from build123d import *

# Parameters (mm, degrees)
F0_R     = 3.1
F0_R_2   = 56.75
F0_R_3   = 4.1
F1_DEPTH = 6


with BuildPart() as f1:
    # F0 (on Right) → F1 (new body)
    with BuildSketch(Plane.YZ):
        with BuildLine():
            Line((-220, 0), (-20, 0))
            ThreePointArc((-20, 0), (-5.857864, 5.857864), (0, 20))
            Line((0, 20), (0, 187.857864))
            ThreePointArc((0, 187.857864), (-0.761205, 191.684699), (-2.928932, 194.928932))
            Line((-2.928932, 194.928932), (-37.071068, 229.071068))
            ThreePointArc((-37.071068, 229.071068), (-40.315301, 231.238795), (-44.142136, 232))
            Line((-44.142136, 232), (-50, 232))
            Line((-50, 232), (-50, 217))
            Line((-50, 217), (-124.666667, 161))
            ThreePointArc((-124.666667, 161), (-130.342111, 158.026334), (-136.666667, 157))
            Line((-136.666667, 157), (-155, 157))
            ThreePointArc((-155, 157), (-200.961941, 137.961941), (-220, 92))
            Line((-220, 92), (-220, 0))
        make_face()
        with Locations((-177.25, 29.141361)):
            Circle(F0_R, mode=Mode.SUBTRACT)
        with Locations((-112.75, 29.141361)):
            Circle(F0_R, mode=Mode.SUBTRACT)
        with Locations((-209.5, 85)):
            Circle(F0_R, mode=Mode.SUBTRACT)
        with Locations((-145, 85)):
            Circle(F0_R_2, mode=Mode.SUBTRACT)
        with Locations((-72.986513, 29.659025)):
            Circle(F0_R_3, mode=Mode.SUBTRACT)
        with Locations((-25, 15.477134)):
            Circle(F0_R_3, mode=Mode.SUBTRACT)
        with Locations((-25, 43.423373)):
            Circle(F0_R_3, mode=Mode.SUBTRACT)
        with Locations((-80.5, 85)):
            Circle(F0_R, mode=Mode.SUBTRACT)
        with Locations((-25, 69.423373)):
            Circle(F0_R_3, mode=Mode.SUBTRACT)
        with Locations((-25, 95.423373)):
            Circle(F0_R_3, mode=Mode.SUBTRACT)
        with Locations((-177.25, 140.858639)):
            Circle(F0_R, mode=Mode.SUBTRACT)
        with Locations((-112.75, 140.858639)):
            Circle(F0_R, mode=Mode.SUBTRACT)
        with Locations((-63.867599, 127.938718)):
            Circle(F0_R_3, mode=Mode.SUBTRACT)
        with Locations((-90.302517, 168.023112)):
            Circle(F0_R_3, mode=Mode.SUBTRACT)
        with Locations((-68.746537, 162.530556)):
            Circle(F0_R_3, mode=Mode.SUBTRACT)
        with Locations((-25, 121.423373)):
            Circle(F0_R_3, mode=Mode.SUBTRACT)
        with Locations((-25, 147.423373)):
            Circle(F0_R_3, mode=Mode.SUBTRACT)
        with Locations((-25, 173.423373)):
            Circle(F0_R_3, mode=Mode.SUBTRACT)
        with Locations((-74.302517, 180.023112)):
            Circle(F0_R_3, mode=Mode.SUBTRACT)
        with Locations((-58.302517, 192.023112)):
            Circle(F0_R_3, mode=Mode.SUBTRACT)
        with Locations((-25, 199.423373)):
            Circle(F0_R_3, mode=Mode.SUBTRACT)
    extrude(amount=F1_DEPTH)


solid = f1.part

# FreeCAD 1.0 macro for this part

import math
import FreeCAD as App
import Part
import Sketcher
from FreeCAD import Vector

doc = App.newDocument("Part")
body = doc.addObject("PartDesign::Body", "Body")

sketch1 = doc.addObject("Sketcher::SketchObject", "Sketch")
body.addObject(sketch1)
sketch1.AttachmentSupport = (doc.YZ_Plane, [""])
sketch1.MapMode = "FlatFace"
sketch1.addGeometry([
    Part.LineSegment(Vector(-220, 0, 0), Vector(-20, 0, 0)),
    Part.ArcOfCircle(Part.Circle(Vector(-19.999999, 19.999999, 0), Vector(0, 0, 1), 19.999999), math.radians(-90.000004), math.radians(0.000004)),
    Part.LineSegment(Vector(0, 20, 0), Vector(0, 187.857864, 0)),
    Part.ArcOfCircle(Part.Circle(Vector(-10.000002, 187.857863, 0), Vector(0, 0, 1), 10.000002), math.radians(0.000003), math.radians(44.999993)),
    Part.LineSegment(Vector(-2.928932, 194.928932, 0), Vector(-37.071068, 229.071068, 0)),
    Part.ArcOfCircle(Part.Circle(Vector(-44.142137, 221.999998, 0), Vector(0, 0, 1), 10.000002), math.radians(45.000007), math.radians(89.999997)),
    Part.LineSegment(Vector(-44.142136, 232, 0), Vector(-50, 232, 0)),
    Part.LineSegment(Vector(-50, 232, 0), Vector(-50, 217, 0)),
    Part.LineSegment(Vector(-50, 217, 0), Vector(-124.666667, 161, 0)),
    Part.ArcOfCircle(Part.Circle(Vector(-136.666665, 176.999995, 0), Vector(0, 0, 1), 19.999995), math.radians(-90.000004), math.radians(-53.130098)),
    Part.LineSegment(Vector(-136.666667, 157, 0), Vector(-155, 157, 0)),
    Part.ArcOfCircle(Part.Circle(Vector(-155.000001, 92.000001, 0), Vector(0, 0, 1), 64.999999), math.radians(89.999999), math.radians(180.000001)),
    Part.LineSegment(Vector(-220, 92, 0), Vector(-220, 0, 0)),
    Part.Circle(Vector(-177.25, 29.141361, 0), Vector(0, 0, 1), 3.1),
    Part.Circle(Vector(-209.5, 85, 0), Vector(0, 0, 1), 3.1),
    Part.Circle(Vector(-145, 85, 0), Vector(0, 0, 1), 56.75),
    Part.Circle(Vector(-112.75, 29.141361, 0), Vector(0, 0, 1), 3.1),
    Part.Circle(Vector(-72.986513, 29.659025, 0), Vector(0, 0, 1), 4.1),
    Part.Circle(Vector(-25, 15.477134, 0), Vector(0, 0, 1), 4.1),
    Part.Circle(Vector(-25, 43.423373, 0), Vector(0, 0, 1), 4.1),
    Part.Circle(Vector(-80.5, 85, 0), Vector(0, 0, 1), 3.1),
    Part.Circle(Vector(-25, 69.423373, 0), Vector(0, 0, 1), 4.1),
    Part.Circle(Vector(-25, 95.423373, 0), Vector(0, 0, 1), 4.1),
    Part.Circle(Vector(-177.25, 140.858639, 0), Vector(0, 0, 1), 3.1),
    Part.Circle(Vector(-112.75, 140.858639, 0), Vector(0, 0, 1), 3.1),
    Part.Circle(Vector(-63.867599, 127.938718, 0), Vector(0, 0, 1), 4.1),
    Part.Circle(Vector(-25, 121.423373, 0), Vector(0, 0, 1), 4.1),
    Part.Circle(Vector(-25, 147.423373, 0), Vector(0, 0, 1), 4.1),
    Part.Circle(Vector(-90.302517, 168.023112, 0), Vector(0, 0, 1), 4.1),
    Part.Circle(Vector(-74.302517, 180.023112, 0), Vector(0, 0, 1), 4.1),
    Part.Circle(Vector(-68.746537, 162.530556, 0), Vector(0, 0, 1), 4.1),
    Part.Circle(Vector(-25, 173.423373, 0), Vector(0, 0, 1), 4.1),
    Part.Circle(Vector(-58.302517, 192.023112, 0), Vector(0, 0, 1), 4.1),
    Part.Circle(Vector(-25, 199.423373, 0), Vector(0, 0, 1), 4.1),
], False)
sketch1.addConstraint([
    Sketcher.Constraint("Coincident", 0, 2, 1, 1),
    Sketcher.Constraint("Coincident", 1, 2, 2, 1),
    Sketcher.Constraint("Coincident", 2, 2, 3, 1),
    Sketcher.Constraint("Coincident", 3, 2, 4, 1),
    Sketcher.Constraint("Coincident", 4, 2, 5, 1),
    Sketcher.Constraint("Coincident", 5, 2, 6, 1),
    Sketcher.Constraint("Coincident", 6, 2, 7, 1),
    Sketcher.Constraint("Coincident", 7, 2, 8, 1),
    Sketcher.Constraint("Coincident", 8, 2, 9, 2),
    Sketcher.Constraint("Coincident", 9, 1, 10, 1),
    Sketcher.Constraint("Coincident", 10, 2, 11, 1),
    Sketcher.Constraint("Coincident", 11, 2, 12, 1),
    Sketcher.Constraint("Coincident", 12, 2, 0, 1),
    Sketcher.Constraint("Horizontal", 0),
    Sketcher.Constraint("Vertical", 2),
    Sketcher.Constraint("Horizontal", 6),
    Sketcher.Constraint("Vertical", 7),
    Sketcher.Constraint("Horizontal", 10),
    Sketcher.Constraint("Vertical", 12),
    Sketcher.Constraint("PointOnObject", 0, 2, -1),
    Sketcher.Constraint("PointOnObject", 1, 2, -2),
    Sketcher.Constraint("Radius", 1, 19.999999),
    Sketcher.Constraint("Radius", 11, 64.999999),
    Sketcher.Constraint("Diameter", 13, 6.2),
    Sketcher.Constraint("Diameter", 14, 6.2),
    Sketcher.Constraint("Diameter", 15, 113.5),
    Sketcher.Constraint("Diameter", 16, 6.2),
    Sketcher.Constraint("Diameter", 17, 8.2),
    Sketcher.Constraint("Diameter", 18, 8.2),
    Sketcher.Constraint("Diameter", 19, 8.2),
    Sketcher.Constraint("Diameter", 20, 6.2),
    Sketcher.Constraint("Diameter", 21, 8.2),
    Sketcher.Constraint("Diameter", 22, 8.2),
    Sketcher.Constraint("Diameter", 23, 6.2),
    Sketcher.Constraint("Diameter", 24, 6.2),
    Sketcher.Constraint("Diameter", 25, 8.2),
    Sketcher.Constraint("Diameter", 26, 8.2),
    Sketcher.Constraint("Diameter", 27, 8.2),
    Sketcher.Constraint("Diameter", 28, 8.2),
    Sketcher.Constraint("Diameter", 29, 8.2),
    Sketcher.Constraint("Diameter", 30, 8.2),
    Sketcher.Constraint("Diameter", 31, 8.2),
    Sketcher.Constraint("Diameter", 32, 8.2),
    Sketcher.Constraint("Diameter", 33, 8.2),
    Sketcher.Constraint("DistanceX", 0, 1, 0, 2, 200.0),
    Sketcher.Constraint("DistanceY", 7, 2, 7, 1, 15.0),
    Sketcher.Constraint("DistanceY", 12, 2, 12, 1, 92.0),
    Sketcher.Constraint("DistanceX", 11, 3, -1, 1, 155.000001),
    Sketcher.Constraint("DistanceY", -1, 1, 11, 3, 92.000001),
    Sketcher.Constraint("DistanceY", -1, 1, 14, 3, 85.0),
    Sketcher.Constraint("DistanceX", 15, 3, -1, 1, 145.0),
    Sketcher.Constraint("DistanceY", -1, 1, 15, 3, 85.0),
    Sketcher.Constraint("DistanceX", 18, 3, -1, 1, 25.0),
    Sketcher.Constraint("DistanceX", 19, 3, -1, 1, 25.0),
    Sketcher.Constraint("DistanceY", -1, 1, 20, 3, 85.0),
    Sketcher.Constraint("DistanceX", 21, 3, -1, 1, 25.0),
    Sketcher.Constraint("DistanceX", 22, 3, -1, 1, 25.0),
    Sketcher.Constraint("DistanceX", 26, 3, -1, 1, 25.0),
    Sketcher.Constraint("DistanceX", 27, 3, -1, 1, 25.0),
    Sketcher.Constraint("DistanceX", 31, 3, -1, 1, 25.0),
    Sketcher.Constraint("DistanceX", 33, 3, -1, 1, 25.0),
    Sketcher.Constraint("DistanceY", -1, 1, 1, 2, 20.0),
    Sketcher.Constraint("DistanceY", -1, 1, 5, 2, 232.0),
    Sketcher.Constraint("DistanceX", 6, 2, -1, 1, 50.0),
    Sketcher.Constraint("DistanceY", -1, 1, 8, 2, 161.0),
    Sketcher.Constraint("DistanceX", 10, 2, -1, 1, 155.0),
    Sketcher.Constraint("DistanceY", 1, 3, 5, 3, 201.999999),
    Sketcher.Constraint("DistanceX", 11, 3, 3, 3, 144.999999),
    Sketcher.Constraint("DistanceY", 19, 3, 21, 3, 26.0),
    Sketcher.Constraint("DistanceY", 21, 3, 22, 3, 26.0),
    Sketcher.Constraint("DistanceY", 22, 3, 26, 3, 26.0),
    Sketcher.Constraint("DistanceY", 26, 3, 27, 3, 26.0),
    Sketcher.Constraint("DistanceX", 28, 3, 29, 3, 16.0),
    Sketcher.Constraint("DistanceY", 28, 3, 29, 3, 12.0),
    Sketcher.Constraint("DistanceY", 27, 3, 31, 3, 26.0),
    Sketcher.Constraint("DistanceX", 29, 3, 32, 3, 16.0),
    Sketcher.Constraint("DistanceY", 29, 3, 32, 3, 12.0),
    Sketcher.Constraint("DistanceY", 31, 3, 33, 3, 26.0),
    Sketcher.Constraint("DistanceX", 9, 3, 8, 2, 11.999998),
    Sketcher.Constraint("DistanceX", 9, 1, 8, 2, 12.0),
    Sketcher.Constraint("DistanceX", 14, 3, -1, 1, 209.5),
    Sketcher.Constraint("DistanceX", 20, 3, -1, 1, 80.5),
    Sketcher.Constraint("DistanceX", 13, 3, 16, 3, 64.5),
    Sketcher.Constraint("DistanceX", 23, 3, 24, 3, 64.5),
    Sketcher.Constraint("DistanceX", 13, 3, -1, 1, 177.25),
    Sketcher.Constraint("DistanceX", 23, 3, -1, 1, 177.25),
    Sketcher.Constraint("DistanceX", 25, 3, -1, 1, 63.867599),
    Sketcher.Constraint("Distance", 4, 48.284272),
    Sketcher.Constraint("DistanceX", 6, 2, 6, 1, 5.857864),
    Sketcher.Constraint("DistanceX", 10, 2, 10, 1, 18.333333),
    Sketcher.Constraint("DistanceY", 2, 1, 2, 2, 167.857864),
    Sketcher.Constraint("DistanceY", -1, 1, 13, 3, 29.141361),
    Sketcher.Constraint("DistanceY", -1, 1, 16, 3, 29.141361),
    Sketcher.Constraint("DistanceY", -1, 1, 23, 3, 140.858639),
    Sketcher.Constraint("DistanceY", -1, 1, 24, 3, 140.858639),
    Sketcher.Constraint("DistanceY", -1, 1, 28, 3, 168.023112),
    Sketcher.Constraint("DistanceX", 3, 2, -1, 1, 2.928932),
    Sketcher.Constraint("DistanceY", -1, 1, 4, 2, 229.071068),
    Sketcher.Constraint("DistanceX", 9, 3, 5, 3, 92.524529),
    Sketcher.Constraint("DistanceY", 18, 3, 17, 3, 14.181891),
    Sketcher.Constraint("DistanceY", 18, 3, 19, 3, 27.946239),
    Sketcher.Constraint("DistanceY", 16, 3, 19, 3, 14.282012),
    Sketcher.Constraint("DistanceY", 25, 3, 24, 3, 12.919921),
    Sketcher.Constraint("DistanceX", 9, 3, 28, 3, 46.364148),
    Sketcher.Constraint("DistanceX", 29, 3, 30, 3, 5.55598),
    Sketcher.Constraint("DistanceX", 17, 3, -1, 1, 72.986513),
    Sketcher.Constraint("DistanceY", -1, 1, 30, 3, 162.530556),
])
pad1 = doc.addObject("PartDesign::Pad", "Pad")
body.addObject(pad1)
pad1.Profile = sketch1
pad1.Length = 6

doc.recompute()
